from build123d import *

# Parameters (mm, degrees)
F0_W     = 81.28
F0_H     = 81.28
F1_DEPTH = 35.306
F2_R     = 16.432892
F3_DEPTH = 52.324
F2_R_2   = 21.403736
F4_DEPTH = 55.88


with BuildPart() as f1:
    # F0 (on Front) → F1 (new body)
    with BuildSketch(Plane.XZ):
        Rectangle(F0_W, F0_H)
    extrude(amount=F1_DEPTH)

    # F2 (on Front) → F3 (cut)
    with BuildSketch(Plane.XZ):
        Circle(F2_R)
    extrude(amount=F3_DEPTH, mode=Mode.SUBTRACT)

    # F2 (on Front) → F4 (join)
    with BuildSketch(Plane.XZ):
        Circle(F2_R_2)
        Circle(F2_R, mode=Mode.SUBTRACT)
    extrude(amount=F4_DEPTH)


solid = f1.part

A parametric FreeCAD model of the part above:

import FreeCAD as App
import Part
import Sketcher
from FreeCAD import Vector
Q = App.Units.Quantity


def add_polygon(sketch, points):
    """Adds a closed chain of lines whose ends are joined by coincident constraints."""
    first, n = sketch.GeometryCount, len(points)
    for a, b in zip(points, points[1:] + points[:1]):
        sketch.addGeometry(Part.LineSegment(App.Vector(*a, 0), App.Vector(*b, 0)), False)
    for i in range(n):
        sketch.addConstraint(Sketcher.Constraint("Coincident", first + i, 2, first + (i + 1) % n, 1))

doc = App.newDocument("Part")
body = doc.addObject("PartDesign::Body", "Body")

# Sketch on XZ plane
sketch1 = body.newObject("Sketcher::SketchObject", "Sketch")
sketch1.AttachmentSupport = (doc.getObject("XZ_Plane"), [""])
sketch1.MapMode = "FlatFace"
add_polygon(sketch1, [(-40.64, 40.64), (-40.64, -40.64), (40.64, -40.64), (40.64, 40.64)])  # lines 0-3
sketch1.addConstraint([
    Sketcher.Constraint("Vertical", 0),
    Sketcher.Constraint("Horizontal", 1),
    Sketcher.Constraint("Vertical", 2),
    Sketcher.Constraint("Horizontal", 3),
    Sketcher.Constraint("Symmetric", 0, 2, 2, 2, -1, 1),
    Sketcher.Constraint("Equal", 3, 0),
    Sketcher.Constraint("DistanceX", 1, 1, 1, 2, Q("3.2 in")),
])
pad1 = body.newObject("PartDesign::Pad", "Pad")
pad1.Profile = sketch1
pad1.Length = Q("1.39 in")

# Sketch on XZ plane
sketch2 = body.newObject("Sketcher::SketchObject", "Sketch001")
sketch2.AttachmentSupport = (doc.getObject("XZ_Plane"), [""])
sketch2.MapMode = "FlatFace"
sketch2.addGeometry(Part.Circle(Vector(0, 0, 0), Vector(0, 0, 1), 16.432892), False)
sketch2.addConstraint([
    Sketcher.Constraint("Coincident", 0, 3, -1, 1),
    Sketcher.Constraint("Diameter", 0, Q("32.865784 mm")),
])
pocket1 = body.newObject("PartDesign::Pocket", "Pocket")
pocket1.Profile = sketch2
pocket1.Length = Q("2.06 in")
pocket1.Reversed = True

# Sketch on XZ plane
sketch3 = body.newObject("Sketcher::SketchObject", "Sketch002")
sketch3.AttachmentSupport = (doc.getObject("XZ_Plane"), [""])
sketch3.MapMode = "FlatFace"
sketch3.addGeometry([
    Part.Circle(Vector(0, 0, 0), Vector(0, 0, 1), 21.403736),
    Part.Circle(Vector(0, 0, 0), Vector(0, 0, 1), 16.432892),
], False)
sketch3.addConstraint([
    Sketcher.Constraint("Coincident", 0, 3, -1, 1),
    Sketcher.Constraint("Coincident", 1, 3, -1, 1),
    Sketcher.Constraint("Diameter", 0, Q("42.807472 mm")),
    Sketcher.Constraint("Diameter", 1, Q("32.865784 mm")),
])
pad2 = body.newObject("PartDesign::Pad", "Pad001")
pad2.Profile = sketch3
pad2.Length = Q("2.2 in")

doc.recompute()
